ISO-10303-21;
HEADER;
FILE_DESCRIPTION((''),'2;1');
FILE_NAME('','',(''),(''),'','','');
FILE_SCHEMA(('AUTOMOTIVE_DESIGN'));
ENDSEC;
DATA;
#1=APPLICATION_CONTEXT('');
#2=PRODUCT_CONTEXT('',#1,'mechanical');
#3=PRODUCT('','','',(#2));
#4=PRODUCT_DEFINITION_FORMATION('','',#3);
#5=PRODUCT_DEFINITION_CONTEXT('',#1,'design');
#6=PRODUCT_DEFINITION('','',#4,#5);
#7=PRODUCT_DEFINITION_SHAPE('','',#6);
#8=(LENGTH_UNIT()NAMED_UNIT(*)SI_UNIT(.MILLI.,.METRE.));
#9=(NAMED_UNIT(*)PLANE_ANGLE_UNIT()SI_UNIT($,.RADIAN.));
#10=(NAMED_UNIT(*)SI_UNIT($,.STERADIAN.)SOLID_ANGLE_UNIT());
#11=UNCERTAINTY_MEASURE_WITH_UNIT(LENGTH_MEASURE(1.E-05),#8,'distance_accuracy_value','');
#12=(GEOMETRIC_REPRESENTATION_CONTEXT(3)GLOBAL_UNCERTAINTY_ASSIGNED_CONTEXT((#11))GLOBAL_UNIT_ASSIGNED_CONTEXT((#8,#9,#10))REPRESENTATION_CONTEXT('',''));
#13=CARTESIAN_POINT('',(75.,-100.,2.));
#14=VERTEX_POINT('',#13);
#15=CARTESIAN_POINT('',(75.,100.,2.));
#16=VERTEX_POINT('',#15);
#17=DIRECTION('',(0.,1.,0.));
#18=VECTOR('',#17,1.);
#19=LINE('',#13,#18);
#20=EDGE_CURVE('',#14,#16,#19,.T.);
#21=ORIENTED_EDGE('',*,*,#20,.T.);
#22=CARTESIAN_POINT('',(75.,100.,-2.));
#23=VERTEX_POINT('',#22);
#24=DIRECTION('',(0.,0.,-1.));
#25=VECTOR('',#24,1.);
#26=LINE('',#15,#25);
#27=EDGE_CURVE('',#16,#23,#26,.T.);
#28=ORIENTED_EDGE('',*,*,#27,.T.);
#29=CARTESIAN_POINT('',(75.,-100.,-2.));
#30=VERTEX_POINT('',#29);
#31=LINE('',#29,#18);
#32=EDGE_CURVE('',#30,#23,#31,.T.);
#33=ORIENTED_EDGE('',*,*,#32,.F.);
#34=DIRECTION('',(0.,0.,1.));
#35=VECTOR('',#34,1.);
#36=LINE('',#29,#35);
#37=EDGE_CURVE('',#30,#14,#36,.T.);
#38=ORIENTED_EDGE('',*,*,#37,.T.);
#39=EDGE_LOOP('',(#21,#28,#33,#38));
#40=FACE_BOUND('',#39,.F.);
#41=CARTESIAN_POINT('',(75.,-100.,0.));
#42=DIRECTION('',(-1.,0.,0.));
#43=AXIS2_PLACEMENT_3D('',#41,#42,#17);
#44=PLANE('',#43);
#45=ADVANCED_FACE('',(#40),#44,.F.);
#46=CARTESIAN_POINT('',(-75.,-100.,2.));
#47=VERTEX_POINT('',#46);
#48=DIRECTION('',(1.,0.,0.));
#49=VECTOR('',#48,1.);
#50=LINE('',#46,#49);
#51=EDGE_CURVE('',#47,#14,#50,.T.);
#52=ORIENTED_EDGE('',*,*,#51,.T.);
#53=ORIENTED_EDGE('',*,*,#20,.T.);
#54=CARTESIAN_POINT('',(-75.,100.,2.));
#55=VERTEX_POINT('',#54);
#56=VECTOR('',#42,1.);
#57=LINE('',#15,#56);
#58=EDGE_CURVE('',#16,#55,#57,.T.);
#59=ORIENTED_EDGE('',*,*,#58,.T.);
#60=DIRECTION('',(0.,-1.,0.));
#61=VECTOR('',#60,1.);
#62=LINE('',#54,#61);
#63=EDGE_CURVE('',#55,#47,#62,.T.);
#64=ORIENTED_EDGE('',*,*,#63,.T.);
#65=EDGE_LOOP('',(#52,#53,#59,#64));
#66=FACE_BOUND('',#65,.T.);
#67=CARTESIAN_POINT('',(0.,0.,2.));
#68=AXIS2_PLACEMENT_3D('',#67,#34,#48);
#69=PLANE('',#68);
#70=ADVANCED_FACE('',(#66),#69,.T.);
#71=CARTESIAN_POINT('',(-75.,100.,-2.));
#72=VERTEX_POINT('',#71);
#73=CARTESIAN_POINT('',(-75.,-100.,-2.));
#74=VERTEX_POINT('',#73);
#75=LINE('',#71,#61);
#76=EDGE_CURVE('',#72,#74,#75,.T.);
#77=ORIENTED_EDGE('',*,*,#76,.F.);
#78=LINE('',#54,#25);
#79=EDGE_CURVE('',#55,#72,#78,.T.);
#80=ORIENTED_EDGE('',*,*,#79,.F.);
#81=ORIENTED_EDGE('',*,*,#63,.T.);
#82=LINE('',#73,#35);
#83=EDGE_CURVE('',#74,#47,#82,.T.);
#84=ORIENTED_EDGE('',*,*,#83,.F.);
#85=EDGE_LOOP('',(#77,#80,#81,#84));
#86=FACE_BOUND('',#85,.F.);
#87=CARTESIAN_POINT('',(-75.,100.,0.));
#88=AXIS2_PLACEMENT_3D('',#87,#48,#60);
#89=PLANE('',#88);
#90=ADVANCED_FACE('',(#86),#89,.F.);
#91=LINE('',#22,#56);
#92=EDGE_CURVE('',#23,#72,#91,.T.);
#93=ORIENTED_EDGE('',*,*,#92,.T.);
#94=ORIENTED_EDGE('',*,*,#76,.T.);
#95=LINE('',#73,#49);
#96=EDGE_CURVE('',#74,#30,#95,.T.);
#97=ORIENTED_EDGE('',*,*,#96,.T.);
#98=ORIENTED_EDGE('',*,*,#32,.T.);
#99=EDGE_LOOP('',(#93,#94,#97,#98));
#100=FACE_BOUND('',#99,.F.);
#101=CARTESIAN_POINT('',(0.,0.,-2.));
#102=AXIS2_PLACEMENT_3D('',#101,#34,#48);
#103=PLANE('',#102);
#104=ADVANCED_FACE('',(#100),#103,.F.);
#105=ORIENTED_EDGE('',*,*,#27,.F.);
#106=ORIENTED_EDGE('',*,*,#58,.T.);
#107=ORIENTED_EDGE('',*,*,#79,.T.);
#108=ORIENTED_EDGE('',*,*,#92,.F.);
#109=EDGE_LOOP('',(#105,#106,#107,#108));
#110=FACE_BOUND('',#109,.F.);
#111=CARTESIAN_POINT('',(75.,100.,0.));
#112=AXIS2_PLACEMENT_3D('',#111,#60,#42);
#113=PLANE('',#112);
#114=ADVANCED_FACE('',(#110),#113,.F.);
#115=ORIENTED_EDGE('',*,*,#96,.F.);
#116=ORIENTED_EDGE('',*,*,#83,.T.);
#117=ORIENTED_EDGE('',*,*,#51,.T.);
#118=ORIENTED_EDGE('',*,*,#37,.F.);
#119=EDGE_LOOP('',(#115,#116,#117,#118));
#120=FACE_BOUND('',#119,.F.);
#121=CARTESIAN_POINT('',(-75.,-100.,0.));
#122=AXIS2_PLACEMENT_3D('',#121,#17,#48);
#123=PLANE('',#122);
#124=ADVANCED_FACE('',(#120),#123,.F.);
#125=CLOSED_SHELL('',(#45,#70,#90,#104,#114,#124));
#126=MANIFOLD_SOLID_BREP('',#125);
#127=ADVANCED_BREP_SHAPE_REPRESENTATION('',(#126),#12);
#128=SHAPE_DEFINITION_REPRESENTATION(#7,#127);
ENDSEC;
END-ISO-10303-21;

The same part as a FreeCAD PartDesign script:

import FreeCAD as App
import Part
import Sketcher

V = App.Vector
Q = App.Units.Quantity

doc = App.newDocument("Part")
body = doc.addObject("PartDesign::Body", "Body")

# Sketch on XY plane
sketch1 = body.newObject("Sketcher::SketchObject", "Sketch")
sketch1.AttachmentSupport = (doc.getObject("XY_Plane"), [""])
sketch1.MapMode = "FlatFace"
sketch1.addGeometry(Part.LineSegment(V(-75, 100, 0), V(-75, -100, 0)), False)
sketch1.addGeometry(Part.LineSegment(V(-75, -100, 0), V(75, -100, 0)), False)
sketch1.addGeometry(Part.LineSegment(V(75, -100, 0), V(75, 100, 0)), False)
sketch1.addGeometry(Part.LineSegment(V(75, 100, 0), V(-75, 100, 0)), False)
sketch1.addConstraint(Sketcher.Constraint("Coincident", 0, 2, 1, 1))
sketch1.addConstraint(Sketcher.Constraint("Coincident", 1, 2, 2, 1))
sketch1.addConstraint(Sketcher.Constraint("Coincident", 2, 2, 3, 1))
sketch1.addConstraint(Sketcher.Constraint("Coincident", 3, 2, 0, 1))
sketch1.addConstraint(Sketcher.Constraint("Vertical", 0))
sketch1.addConstraint(Sketcher.Constraint("Horizontal", 1))
sketch1.addConstraint(Sketcher.Constraint("Vertical", 2))
sketch1.addConstraint(Sketcher.Constraint("Horizontal", 3))
sketch1.addConstraint(Sketcher.Constraint("Symmetric", 0, 2, 2, 2, -1, 1))
sketch1.addConstraint(Sketcher.Constraint("DistanceX", 1, 1, 1, 2, Q("150 mm")))
sketch1.addConstraint(Sketcher.Constraint("DistanceY", 0, 2, 0, 1, Q("200 mm")))
pad1 = body.newObject("PartDesign::Pad", "Pad")
pad1.Profile = sketch1
pad1.Length = 4
pad1.Midplane = True

doc.recompute()
